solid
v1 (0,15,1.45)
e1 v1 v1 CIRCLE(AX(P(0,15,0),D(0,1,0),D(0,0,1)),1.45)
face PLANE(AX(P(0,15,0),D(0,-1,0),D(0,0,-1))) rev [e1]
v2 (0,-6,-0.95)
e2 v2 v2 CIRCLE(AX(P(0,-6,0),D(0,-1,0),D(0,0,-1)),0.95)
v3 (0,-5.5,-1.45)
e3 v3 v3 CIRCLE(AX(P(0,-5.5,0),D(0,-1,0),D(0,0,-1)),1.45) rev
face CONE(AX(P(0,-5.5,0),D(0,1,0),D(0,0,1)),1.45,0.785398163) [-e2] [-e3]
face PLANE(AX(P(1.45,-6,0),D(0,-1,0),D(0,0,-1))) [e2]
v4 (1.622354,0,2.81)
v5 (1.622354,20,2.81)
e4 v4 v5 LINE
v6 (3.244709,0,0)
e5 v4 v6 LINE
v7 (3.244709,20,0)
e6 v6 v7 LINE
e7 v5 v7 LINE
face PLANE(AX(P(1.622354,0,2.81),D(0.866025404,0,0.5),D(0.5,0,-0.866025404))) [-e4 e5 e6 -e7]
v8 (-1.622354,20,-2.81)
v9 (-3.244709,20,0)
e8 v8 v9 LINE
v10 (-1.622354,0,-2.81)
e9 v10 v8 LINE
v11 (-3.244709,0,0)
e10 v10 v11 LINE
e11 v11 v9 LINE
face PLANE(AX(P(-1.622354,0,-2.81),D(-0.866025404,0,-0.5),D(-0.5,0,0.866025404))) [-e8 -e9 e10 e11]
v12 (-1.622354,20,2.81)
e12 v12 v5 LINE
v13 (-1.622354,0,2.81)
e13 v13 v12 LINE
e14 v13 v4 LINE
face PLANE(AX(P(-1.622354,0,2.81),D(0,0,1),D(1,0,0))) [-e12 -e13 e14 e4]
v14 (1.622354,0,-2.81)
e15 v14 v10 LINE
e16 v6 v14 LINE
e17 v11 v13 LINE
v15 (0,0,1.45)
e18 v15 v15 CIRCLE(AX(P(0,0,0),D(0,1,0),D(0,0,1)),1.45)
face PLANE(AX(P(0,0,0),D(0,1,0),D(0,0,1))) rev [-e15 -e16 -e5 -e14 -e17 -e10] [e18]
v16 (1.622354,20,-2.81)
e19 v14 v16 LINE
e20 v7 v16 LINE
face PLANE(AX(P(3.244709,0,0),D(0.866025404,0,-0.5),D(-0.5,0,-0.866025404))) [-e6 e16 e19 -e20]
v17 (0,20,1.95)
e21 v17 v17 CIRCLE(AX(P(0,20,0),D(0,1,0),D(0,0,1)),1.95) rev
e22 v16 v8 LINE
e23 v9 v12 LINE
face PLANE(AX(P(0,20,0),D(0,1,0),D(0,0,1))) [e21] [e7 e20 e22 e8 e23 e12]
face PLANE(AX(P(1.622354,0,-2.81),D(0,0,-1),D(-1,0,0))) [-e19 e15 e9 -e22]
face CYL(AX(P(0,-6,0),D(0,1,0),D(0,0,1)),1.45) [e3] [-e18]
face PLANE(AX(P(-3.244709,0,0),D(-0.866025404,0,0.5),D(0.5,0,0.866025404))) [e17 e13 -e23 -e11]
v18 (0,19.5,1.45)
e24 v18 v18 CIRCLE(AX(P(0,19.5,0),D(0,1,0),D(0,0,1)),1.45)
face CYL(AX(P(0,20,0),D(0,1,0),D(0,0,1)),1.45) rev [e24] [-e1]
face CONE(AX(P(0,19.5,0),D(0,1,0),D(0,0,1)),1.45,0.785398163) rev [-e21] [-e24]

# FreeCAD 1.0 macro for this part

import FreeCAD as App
import Part
import Sketcher
from FreeCAD import Vector
Q = App.Units.Quantity


def edges_at(feature, points):
    """Names of the edges that pass closest to the given points."""
    edges = feature.Shape.Edges
    near = lambda p: min(range(len(edges)), key=lambda i: edges[i].distToShape(Part.Vertex(*p))[0])
    return sorted({f"Edge{near(p) + 1}" for p in points})

doc = App.newDocument("Part")
body = doc.addObject("PartDesign::Body", "Body")

# Sketch on XZ plane
sketch1 = doc.addObject("Sketcher::SketchObject", "Sketch")
body.addObject(sketch1)
sketch1.AttachmentSupport = (doc.XZ_Plane, [""])
sketch1.MapMode = "FlatFace"
sketch1.AttachmentOffset = App.Placement(Vector(0, 0, -20), App.Rotation())
sketch1.addGeometry(Part.LineSegment(Vector(1.6, 2.8, 0), Vector(3.2, 0, 0)), False)
sketch1.addGeometry(Part.LineSegment(Vector(3.2, 0, 0), Vector(1.6, -2.8, 0)), False)
sketch1.addGeometry(Part.LineSegment(Vector(1.6, -2.8, 0), Vector(-1.6, -2.8, 0)), False)
sketch1.addGeometry(Part.LineSegment(Vector(-1.6, -2.8, 0), Vector(-3.2, 0, 0)), False)
sketch1.addGeometry(Part.LineSegment(Vector(-3.2, 0, 0), Vector(-1.6, 2.8, 0)), False)
sketch1.addGeometry(Part.LineSegment(Vector(-1.6, 2.8, 0), Vector(1.6, 2.8, 0)), False)
sketch1.addConstraint(Sketcher.Constraint("Coincident", 0, 2, 1, 1))
sketch1.addConstraint(Sketcher.Constraint("Coincident", 1, 2, 2, 1))
sketch1.addConstraint(Sketcher.Constraint("Coincident", 2, 2, 3, 1))
sketch1.addConstraint(Sketcher.Constraint("Coincident", 3, 2, 4, 1))
sketch1.addConstraint(Sketcher.Constraint("Coincident", 4, 2, 5, 1))
sketch1.addConstraint(Sketcher.Constraint("Coincident", 5, 2, 0, 1))
sketch1.addConstraint(Sketcher.Constraint("Horizontal", 2))
sketch1.addConstraint(Sketcher.Constraint("Horizontal", 5))
sketch1.addConstraint(Sketcher.Constraint("Symmetric", 0, 2, 3, 2, -1, 1))
sketch1.addConstraint(Sketcher.Constraint("Symmetric", 1, 2, 4, 2, -1, 1))
sketch1.addConstraint(Sketcher.Constraint("PointOnObject", 0, 2, -1))
sketch1.addConstraint(Sketcher.Constraint("Parallel", 0, 3))
sketch1.addConstraint(Sketcher.Constraint("Vertical", 2, 2, 4, 2))
sketch1.addConstraint(Sketcher.Constraint("Angle", 0, Q("-60 deg")))
sketch1.addConstraint(Sketcher.Constraint("DistanceY", 1, 2, -1, 1, Q("2.81 mm")))
sketch1.addConstraint(Sketcher.Constraint("DistanceX", 2, 2, 2, 1, Q("3.244709 mm")))
pad1 = doc.addObject("PartDesign::Pad", "Pad")
body.addObject(pad1)
pad1.Profile = sketch1
pad1.Length = 20

# Sketch on XY plane
sketch2 = doc.addObject("Sketcher::SketchObject", "Sketch001")
body.addObject(sketch2)
sketch2.AttachmentSupport = (doc.XY_Plane, [""])
sketch2.MapMode = "FlatFace"
sketch2.addGeometry(Part.LineSegment(Vector(1.4, 0, 0), Vector(1.4, -6, 0)), False)
sketch2.addGeometry(Part.LineSegment(Vector(1.4, -6, 0), Vector(0, -6, 0)), False)
sketch2.addGeometry(Part.LineSegment(Vector(0, -6, 0), Vector(0, 0, 0)), False)
sketch2.addGeometry(Part.LineSegment(Vector(0, 0, 0), Vector(1.4, 0, 0)), False)
sketch2.addConstraint(Sketcher.Constraint("Coincident", 0, 2, 1, 1))
sketch2.addConstraint(Sketcher.Constraint("Coincident", 1, 2, 2, 1))
sketch2.addConstraint(Sketcher.Constraint("Coincident", 2, 2, 3, 1))
sketch2.addConstraint(Sketcher.Constraint("Coincident", 3, 2, 0, 1))
sketch2.addConstraint(Sketcher.Constraint("Vertical", 0))
sketch2.addConstraint(Sketcher.Constraint("Horizontal", 1))
sketch2.addConstraint(Sketcher.Constraint("Vertical", 2))
sketch2.addConstraint(Sketcher.Constraint("Horizontal", 3))
sketch2.addConstraint(Sketcher.Constraint("Coincident", 2, 2, -1, 1))
sketch2.addConstraint(Sketcher.Constraint("DistanceY", 0, 2, 0, 1, Q("6 mm")))
sketch2.addConstraint(Sketcher.Constraint("DistanceX", 1, 2, 1, 1, Q("1.45 mm")))
revolution = doc.addObject("PartDesign::Revolution", "Revolution")
body.addObject(revolution)
revolution.Profile = sketch2
revolution.ReferenceAxis = (sketch2, ["V_Axis"])
revolution.Angle = 360

# Sketch on XZ plane
sketch3 = doc.addObject("Sketcher::SketchObject", "Sketch002")
body.addObject(sketch3)
sketch3.AttachmentSupport = (doc.XZ_Plane, [""])
sketch3.MapMode = "FlatFace"
sketch3.AttachmentOffset = App.Placement(Vector(0, 0, -20), App.Rotation())
sketch3.addGeometry(Part.Circle(Vector(0, 0, 0), Vector(0, 0, 1), 1.4), False)
sketch3.addConstraint(Sketcher.Constraint("Coincident", 0, 3, -1, 1))
sketch3.addConstraint(Sketcher.Constraint("Diameter", 0, Q("2.9 mm")))
doc.recompute()
hole = doc.addObject("PartDesign::Hole", "Hole")
body.addObject(hole)
hole.Profile = sketch3
hole.ThreadType = "None"
hole.Diameter = 2.9
hole.DepthType = "Dimension"
hole.Depth = 5
hole.DrillPoint = "Flat"
hole.Reversed = True
doc.recompute()

chamfer = doc.addObject("PartDesign::Chamfer", "Chamfer")
body.addObject(chamfer)
chamfer.Base = (hole, edges_at(hole, [(0, -6, -1.45), (1.45, 20, 0)]))
chamfer.Size = 0.5

doc.recompute()
